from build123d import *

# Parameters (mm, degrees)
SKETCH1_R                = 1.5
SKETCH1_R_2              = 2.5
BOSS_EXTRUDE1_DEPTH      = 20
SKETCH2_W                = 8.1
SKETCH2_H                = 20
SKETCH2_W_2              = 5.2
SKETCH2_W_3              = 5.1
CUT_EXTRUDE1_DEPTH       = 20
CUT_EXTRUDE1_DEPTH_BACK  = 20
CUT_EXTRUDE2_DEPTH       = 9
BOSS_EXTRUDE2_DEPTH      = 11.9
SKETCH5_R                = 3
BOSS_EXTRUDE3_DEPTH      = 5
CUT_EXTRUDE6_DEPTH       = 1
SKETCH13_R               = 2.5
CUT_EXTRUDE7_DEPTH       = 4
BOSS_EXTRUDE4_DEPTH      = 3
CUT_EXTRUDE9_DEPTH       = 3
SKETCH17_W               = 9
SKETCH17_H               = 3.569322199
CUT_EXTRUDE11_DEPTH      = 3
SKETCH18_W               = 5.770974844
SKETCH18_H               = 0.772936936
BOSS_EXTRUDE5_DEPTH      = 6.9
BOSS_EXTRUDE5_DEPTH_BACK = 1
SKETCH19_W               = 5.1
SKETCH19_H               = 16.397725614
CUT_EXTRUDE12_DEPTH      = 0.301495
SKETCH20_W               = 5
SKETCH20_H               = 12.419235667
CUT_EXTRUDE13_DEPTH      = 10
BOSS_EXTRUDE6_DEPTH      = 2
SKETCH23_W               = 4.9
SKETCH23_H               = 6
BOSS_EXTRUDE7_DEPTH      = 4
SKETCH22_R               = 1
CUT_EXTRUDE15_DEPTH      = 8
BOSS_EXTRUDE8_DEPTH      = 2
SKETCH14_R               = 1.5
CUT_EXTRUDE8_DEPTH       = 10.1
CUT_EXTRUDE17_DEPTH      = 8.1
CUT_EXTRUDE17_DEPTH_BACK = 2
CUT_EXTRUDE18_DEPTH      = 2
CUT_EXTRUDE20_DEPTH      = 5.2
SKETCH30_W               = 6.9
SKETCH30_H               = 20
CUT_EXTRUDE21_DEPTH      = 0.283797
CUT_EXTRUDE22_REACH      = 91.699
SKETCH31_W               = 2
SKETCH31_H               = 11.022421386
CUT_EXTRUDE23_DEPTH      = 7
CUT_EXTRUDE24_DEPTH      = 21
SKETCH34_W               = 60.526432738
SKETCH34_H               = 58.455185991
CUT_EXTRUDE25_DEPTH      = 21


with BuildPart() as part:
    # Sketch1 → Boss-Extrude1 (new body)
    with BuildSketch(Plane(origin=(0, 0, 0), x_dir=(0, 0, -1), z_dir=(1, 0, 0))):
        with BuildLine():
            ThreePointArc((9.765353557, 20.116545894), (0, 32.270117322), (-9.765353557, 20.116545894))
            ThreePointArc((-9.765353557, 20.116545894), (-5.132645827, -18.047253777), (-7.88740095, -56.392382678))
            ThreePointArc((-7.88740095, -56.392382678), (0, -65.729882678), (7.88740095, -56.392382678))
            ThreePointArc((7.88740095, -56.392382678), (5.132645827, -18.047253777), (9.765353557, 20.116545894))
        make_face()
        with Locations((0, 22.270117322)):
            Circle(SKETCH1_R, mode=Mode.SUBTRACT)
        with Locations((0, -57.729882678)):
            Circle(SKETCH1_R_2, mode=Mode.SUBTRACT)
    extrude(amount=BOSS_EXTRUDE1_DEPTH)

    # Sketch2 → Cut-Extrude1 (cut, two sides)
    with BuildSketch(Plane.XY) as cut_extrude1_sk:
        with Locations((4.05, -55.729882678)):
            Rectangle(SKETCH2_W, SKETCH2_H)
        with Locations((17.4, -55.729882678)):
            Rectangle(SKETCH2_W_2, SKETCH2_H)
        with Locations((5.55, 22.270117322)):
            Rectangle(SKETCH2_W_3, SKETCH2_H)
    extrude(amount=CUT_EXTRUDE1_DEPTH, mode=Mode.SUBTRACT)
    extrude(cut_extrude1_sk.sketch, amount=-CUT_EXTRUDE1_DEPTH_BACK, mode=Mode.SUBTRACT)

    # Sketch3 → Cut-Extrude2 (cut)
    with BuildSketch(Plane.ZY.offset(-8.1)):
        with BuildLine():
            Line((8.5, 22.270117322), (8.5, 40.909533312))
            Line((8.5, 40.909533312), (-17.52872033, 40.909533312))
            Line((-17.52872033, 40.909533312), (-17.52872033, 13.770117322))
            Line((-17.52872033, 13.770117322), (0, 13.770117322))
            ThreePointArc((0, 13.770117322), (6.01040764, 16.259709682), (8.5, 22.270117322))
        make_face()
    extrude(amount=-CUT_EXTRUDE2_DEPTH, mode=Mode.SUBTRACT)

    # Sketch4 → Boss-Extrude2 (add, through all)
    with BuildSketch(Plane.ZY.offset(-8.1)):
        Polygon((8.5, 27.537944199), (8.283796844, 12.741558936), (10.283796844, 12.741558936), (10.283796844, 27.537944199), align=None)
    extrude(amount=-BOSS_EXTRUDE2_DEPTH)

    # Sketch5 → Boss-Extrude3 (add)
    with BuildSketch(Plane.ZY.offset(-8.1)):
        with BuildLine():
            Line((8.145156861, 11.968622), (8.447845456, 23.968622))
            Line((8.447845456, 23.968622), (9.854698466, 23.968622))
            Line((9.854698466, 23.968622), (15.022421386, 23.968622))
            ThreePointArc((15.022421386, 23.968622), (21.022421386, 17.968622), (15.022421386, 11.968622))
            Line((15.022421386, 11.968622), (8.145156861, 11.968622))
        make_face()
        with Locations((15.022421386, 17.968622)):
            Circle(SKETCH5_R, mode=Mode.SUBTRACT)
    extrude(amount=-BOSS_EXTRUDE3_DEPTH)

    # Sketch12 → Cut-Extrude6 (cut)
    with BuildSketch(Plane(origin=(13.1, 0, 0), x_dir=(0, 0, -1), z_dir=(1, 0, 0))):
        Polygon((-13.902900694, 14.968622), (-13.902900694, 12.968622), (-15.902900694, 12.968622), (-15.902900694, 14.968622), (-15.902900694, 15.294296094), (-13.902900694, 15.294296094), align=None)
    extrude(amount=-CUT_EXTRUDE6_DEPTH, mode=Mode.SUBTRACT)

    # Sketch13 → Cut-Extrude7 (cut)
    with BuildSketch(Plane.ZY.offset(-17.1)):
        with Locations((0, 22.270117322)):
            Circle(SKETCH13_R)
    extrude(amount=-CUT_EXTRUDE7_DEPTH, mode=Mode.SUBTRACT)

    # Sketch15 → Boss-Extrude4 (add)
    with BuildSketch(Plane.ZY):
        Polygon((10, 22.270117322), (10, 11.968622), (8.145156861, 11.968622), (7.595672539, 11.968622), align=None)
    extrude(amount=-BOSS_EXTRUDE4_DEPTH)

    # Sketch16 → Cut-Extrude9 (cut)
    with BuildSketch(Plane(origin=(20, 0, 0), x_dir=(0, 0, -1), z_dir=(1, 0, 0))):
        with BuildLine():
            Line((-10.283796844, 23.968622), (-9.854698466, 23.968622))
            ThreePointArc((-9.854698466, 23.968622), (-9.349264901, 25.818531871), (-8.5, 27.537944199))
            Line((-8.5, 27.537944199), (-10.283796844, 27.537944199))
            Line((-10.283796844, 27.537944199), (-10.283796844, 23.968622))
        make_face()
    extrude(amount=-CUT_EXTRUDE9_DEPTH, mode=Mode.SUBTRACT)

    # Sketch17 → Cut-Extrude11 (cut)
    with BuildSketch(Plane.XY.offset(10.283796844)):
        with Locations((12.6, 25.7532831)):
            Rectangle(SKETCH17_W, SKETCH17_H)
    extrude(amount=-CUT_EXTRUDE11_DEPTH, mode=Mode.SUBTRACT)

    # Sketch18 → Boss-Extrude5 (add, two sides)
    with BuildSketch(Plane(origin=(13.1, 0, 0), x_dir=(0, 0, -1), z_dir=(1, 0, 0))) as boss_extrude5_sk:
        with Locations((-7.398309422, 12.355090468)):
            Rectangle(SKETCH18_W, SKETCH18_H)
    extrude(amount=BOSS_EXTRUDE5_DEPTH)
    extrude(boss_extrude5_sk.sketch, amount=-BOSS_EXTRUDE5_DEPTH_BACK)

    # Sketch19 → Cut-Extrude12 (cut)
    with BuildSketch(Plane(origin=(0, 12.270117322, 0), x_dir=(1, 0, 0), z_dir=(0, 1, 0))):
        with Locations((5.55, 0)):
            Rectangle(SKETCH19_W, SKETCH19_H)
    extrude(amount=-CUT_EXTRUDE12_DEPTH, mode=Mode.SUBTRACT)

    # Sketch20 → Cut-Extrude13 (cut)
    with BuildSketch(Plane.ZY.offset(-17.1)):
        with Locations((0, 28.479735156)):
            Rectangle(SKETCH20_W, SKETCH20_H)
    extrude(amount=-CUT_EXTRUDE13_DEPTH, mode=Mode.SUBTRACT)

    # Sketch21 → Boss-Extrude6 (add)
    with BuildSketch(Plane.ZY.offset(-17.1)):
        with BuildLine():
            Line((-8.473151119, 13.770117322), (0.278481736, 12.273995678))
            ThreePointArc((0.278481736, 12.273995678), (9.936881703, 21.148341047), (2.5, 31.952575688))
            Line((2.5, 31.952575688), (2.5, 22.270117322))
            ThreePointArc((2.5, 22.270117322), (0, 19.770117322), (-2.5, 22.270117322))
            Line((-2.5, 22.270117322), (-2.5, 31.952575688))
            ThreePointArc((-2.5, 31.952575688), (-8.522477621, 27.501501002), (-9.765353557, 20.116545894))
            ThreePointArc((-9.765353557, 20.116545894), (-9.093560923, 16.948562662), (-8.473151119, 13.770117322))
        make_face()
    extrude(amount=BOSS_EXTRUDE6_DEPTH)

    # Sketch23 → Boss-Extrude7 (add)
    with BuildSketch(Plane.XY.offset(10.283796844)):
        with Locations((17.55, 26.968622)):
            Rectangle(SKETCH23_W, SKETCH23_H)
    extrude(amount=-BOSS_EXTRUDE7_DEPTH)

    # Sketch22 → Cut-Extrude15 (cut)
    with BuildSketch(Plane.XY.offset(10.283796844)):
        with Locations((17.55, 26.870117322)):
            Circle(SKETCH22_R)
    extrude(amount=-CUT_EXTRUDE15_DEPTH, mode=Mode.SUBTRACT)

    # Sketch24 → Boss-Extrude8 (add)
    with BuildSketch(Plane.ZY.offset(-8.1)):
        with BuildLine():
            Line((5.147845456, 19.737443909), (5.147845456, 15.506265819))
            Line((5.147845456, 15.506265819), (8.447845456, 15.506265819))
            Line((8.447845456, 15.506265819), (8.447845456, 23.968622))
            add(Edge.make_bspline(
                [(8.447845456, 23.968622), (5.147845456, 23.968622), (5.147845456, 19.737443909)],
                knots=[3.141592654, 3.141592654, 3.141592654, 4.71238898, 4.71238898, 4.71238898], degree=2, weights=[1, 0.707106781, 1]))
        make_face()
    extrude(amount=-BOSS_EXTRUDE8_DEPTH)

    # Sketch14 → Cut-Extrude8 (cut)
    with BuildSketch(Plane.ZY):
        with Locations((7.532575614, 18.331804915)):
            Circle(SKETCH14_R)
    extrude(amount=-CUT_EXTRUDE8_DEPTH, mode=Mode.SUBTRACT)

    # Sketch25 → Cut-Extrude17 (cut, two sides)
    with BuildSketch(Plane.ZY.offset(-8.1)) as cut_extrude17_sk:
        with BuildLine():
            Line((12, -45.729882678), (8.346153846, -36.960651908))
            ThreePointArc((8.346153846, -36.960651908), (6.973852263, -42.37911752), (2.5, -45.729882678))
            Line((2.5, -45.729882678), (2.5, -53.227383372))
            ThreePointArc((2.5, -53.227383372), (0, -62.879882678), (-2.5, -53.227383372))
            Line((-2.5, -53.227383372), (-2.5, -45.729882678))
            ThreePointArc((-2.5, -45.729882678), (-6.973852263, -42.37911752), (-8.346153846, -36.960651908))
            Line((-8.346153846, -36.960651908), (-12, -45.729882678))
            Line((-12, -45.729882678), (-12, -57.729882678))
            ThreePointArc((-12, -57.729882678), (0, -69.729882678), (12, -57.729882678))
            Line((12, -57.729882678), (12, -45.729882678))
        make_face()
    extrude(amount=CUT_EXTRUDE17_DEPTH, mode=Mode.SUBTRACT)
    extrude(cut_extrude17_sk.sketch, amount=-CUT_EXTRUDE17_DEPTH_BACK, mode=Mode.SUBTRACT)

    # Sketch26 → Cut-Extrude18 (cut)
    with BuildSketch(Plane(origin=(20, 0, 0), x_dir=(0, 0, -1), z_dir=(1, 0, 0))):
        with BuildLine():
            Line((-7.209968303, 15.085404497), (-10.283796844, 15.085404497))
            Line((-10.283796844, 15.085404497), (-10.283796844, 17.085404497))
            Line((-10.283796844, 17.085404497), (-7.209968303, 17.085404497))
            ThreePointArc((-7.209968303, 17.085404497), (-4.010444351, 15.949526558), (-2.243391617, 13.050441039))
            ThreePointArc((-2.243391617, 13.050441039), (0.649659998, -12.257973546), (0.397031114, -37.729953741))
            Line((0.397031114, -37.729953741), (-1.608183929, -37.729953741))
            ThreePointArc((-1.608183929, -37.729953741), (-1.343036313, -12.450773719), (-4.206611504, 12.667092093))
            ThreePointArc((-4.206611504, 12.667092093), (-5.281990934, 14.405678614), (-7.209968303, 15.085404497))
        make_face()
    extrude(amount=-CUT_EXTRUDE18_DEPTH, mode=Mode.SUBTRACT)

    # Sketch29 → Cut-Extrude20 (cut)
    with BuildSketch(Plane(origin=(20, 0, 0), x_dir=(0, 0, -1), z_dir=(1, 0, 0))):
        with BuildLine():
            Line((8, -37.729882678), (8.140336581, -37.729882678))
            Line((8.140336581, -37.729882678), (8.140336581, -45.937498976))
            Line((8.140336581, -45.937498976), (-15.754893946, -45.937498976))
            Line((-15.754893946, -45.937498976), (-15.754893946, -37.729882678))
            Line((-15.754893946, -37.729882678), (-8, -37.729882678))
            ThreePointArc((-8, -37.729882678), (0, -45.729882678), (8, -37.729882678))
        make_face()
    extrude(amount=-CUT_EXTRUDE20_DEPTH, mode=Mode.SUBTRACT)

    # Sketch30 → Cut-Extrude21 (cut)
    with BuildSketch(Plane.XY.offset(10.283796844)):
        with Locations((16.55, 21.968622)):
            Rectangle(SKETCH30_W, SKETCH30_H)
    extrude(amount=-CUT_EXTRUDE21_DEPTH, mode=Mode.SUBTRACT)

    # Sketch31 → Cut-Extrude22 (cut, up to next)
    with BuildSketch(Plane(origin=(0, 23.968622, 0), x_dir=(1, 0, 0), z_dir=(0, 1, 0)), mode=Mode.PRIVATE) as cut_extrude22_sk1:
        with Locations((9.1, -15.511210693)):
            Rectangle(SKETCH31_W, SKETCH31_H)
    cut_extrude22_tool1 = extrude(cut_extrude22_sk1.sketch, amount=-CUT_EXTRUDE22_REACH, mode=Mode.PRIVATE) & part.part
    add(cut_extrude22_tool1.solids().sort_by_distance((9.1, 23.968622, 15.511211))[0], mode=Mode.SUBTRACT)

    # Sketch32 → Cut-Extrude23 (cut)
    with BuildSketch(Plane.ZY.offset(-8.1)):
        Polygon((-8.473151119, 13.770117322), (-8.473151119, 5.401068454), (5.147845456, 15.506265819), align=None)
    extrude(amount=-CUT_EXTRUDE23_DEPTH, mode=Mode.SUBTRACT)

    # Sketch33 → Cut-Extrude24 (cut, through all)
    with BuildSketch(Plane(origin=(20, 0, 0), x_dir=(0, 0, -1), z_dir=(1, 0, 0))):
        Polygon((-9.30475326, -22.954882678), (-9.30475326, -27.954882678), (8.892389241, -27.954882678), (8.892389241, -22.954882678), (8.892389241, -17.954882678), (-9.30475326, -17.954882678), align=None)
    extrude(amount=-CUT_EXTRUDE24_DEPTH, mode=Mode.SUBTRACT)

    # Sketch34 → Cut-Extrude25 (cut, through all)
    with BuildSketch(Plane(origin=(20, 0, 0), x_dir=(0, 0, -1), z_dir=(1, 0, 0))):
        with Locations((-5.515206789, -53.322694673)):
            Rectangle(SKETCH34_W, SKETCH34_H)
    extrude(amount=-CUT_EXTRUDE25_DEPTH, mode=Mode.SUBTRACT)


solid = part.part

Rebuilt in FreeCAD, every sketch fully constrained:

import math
import FreeCAD as App
import Part
import Sketcher


def add_polygon(sketch, points):
    """Adds a closed chain of lines whose ends are joined by coincident constraints."""
    first, n = sketch.GeometryCount, len(points)
    for a, b in zip(points, points[1:] + points[:1]):
        sketch.addGeometry(Part.LineSegment(App.Vector(*a, 0), App.Vector(*b, 0)), False)
    for i in range(n):
        sketch.addConstraint(Sketcher.Constraint("Coincident", first + i, 2, first + (i + 1) % n, 1))

doc = App.newDocument("Part")
body = doc.addObject("PartDesign::Body", "Body")
body.AllowCompound = True

# Sketch on YZ plane
sketch1 = body.newObject("Sketcher::SketchObject", "Sketch")
sketch1.AttachmentSupport = (doc.getObject("YZ_Plane"), [""])
sketch1.MapMode = "FlatFace"
sketch1.addGeometry([
    Part.ArcOfCircle(Part.Circle(App.Vector(22.270117, 0, 0), App.Vector(0, 0, 1), 10), math.radians(-102.436481), math.radians(102.436481)),  # 0
    Part.ArcOfCircle(Part.Circle(App.Vector(-22.954883, 205.072425, 0), App.Vector(0, 0, 1), 200), math.radians(-99.624334), math.radians(-77.563519)),  # 1
    Part.ArcOfCircle(Part.Circle(App.Vector(-57.729883, 0, 0), App.Vector(0, 0, 1), 8), math.radians(80.375666), math.radians(279.624334)),  # 2
    Part.ArcOfCircle(Part.Circle(App.Vector(-22.954883, -205.072425, 0), App.Vector(0, 0, 1), 200), math.radians(77.563519), math.radians(99.624334)),  # 3
    Part.Circle(App.Vector(-57.729883, 0, 0), App.Vector(0, 0, 1), 2.5),  # 4
    Part.Circle(App.Vector(22.270117, 0, 0), App.Vector(0, 0, 1), 1.5),  # 5
], False)
sketch1.addConstraint([
    Sketcher.Constraint("Tangent", 0, 2, 1, 2),
    Sketcher.Constraint("Tangent", 1, 1, 2, 1),
    Sketcher.Constraint("Tangent", 2, 2, 3, 2),
    Sketcher.Constraint("Tangent", 3, 1, 0, 1),
    Sketcher.Constraint("Coincident", 4, 3, 2, 3),
    Sketcher.Constraint("Coincident", 5, 3, 0, 3),
    Sketcher.Constraint("Equal", 1, 3),
    Sketcher.Constraint("Symmetric", 1, 3, 3, 3, -1),
    Sketcher.Constraint("Diameter", 4, 5.0),
    Sketcher.Constraint("Diameter", 5, 3.0),
    Sketcher.Constraint("Radius", 0, 10.0),
    Sketcher.Constraint("Radius", 1, 200.0),
    Sketcher.Constraint("Radius", 2, 8.0),
    Sketcher.Constraint("DistanceX", 2, 3, 0, 3, 80.0),
    Sketcher.Constraint("DistanceX", -1, 1, 0, 3, 22.270117),
])
pad1 = body.newObject("PartDesign::Pad", "Pad")
pad1.Profile = sketch1
pad1.Length = 20

# Sketch on XY plane
sketch2 = body.newObject("Sketcher::SketchObject", "Sketch001")
sketch2.AttachmentSupport = (doc.getObject("XY_Plane"), [""])
sketch2.MapMode = "FlatFace"
add_polygon(sketch2, [(0, -45.729883), (0, -65.729883), (8.1, -65.729883), (8.1, -45.729883)])  # lines 0-3
add_polygon(sketch2, [(14.8, -45.729883), (14.8, -65.729883), (20, -65.729883), (20, -45.729883)])  # lines 4-7
add_polygon(sketch2, [(3, 32.270117), (3, 12.270117), (8.1, 12.270117), (8.1, 32.270117)])  # lines 8-11
sketch2.addConstraint([
    Sketcher.Constraint("Vertical", 0),
    Sketcher.Constraint("Horizontal", 1),
    Sketcher.Constraint("Vertical", 2),
    Sketcher.Constraint("Horizontal", 3),
    Sketcher.Constraint("Vertical", 4),
    Sketcher.Constraint("Horizontal", 5),
    Sketcher.Constraint("Vertical", 6),
    Sketcher.Constraint("Horizontal", 7),
    Sketcher.Constraint("Vertical", 8),
    Sketcher.Constraint("Horizontal", 9),
    Sketcher.Constraint("Vertical", 10),
    Sketcher.Constraint("Horizontal", 11),
    Sketcher.Constraint("PointOnObject", 0, 2, -2),
    Sketcher.Constraint("Horizontal", 1, 2, 4, 2),
    Sketcher.Constraint("Horizontal", 3, 2, 6, 2),
    Sketcher.Constraint("Vertical", 2, 2, 9, 2),
    Sketcher.Constraint("Equal", 6, 8),
    Sketcher.Constraint("DistanceY", 0, 2, 0, 1, 20.0),
    Sketcher.Constraint("DistanceX", 1, 1, 1, 2, 8.1),
    Sketcher.Constraint("DistanceX", 5, 1, 5, 2, 5.2),
    Sketcher.Constraint("DistanceX", 9, 1, 9, 2, 5.1),
    Sketcher.Constraint("DistanceX", -1, 1, 5, 2, 20.0),
    Sketcher.Constraint("DistanceY", 3, 2, 8, 2, 58.0),
    Sketcher.Constraint("DistanceY", 0, 2, -1, 1, 65.729883),
])
pocket1 = body.newObject("PartDesign::Pocket", "Pocket")
pocket1.Profile = sketch2
pocket1.Type = "ThroughAll"
pocket1.Midplane = True

# Sketch on YZ plane
sketch3 = body.newObject("Sketcher::SketchObject", "Sketch002")
sketch3.AttachmentSupport = (doc.getObject("YZ_Plane"), [""])
sketch3.MapMode = "FlatFace"
sketch3.AttachmentOffset = App.Placement(App.Vector(0, 0, 8.1), App.Rotation())
sketch3.addGeometry([
    Part.LineSegment(App.Vector(22.270117, 8.5, 0), App.Vector(40.909533, 8.5, 0)),  # 0
    Part.LineSegment(App.Vector(40.909533, 8.5, 0), App.Vector(40.909533, -17.52872, 0)),  # 1
    Part.LineSegment(App.Vector(40.909533, -17.52872, 0), App.Vector(13.770117, -17.52872, 0)),  # 2
    Part.LineSegment(App.Vector(13.770117, -17.52872, 0), App.Vector(13.770117, 0, 0)),  # 3
    Part.ArcOfCircle(Part.Circle(App.Vector(22.270117, 0, 0), App.Vector(0, 0, 1), 8.5), math.radians(90), math.radians(180)),  # 4
], False)
sketch3.addConstraint([
    Sketcher.Constraint("Coincident", 0, 2, 1, 1),
    Sketcher.Constraint("Coincident", 1, 2, 2, 1),
    Sketcher.Constraint("Coincident", 2, 2, 3, 1),
    Sketcher.Constraint("Tangent", 3, 2, 4, 2),
    Sketcher.Constraint("Tangent", 4, 1, 0, 1),
    Sketcher.Constraint("Horizontal", 0),
    Sketcher.Constraint("Vertical", 1),
    Sketcher.Constraint("Horizontal", 2),
    Sketcher.Constraint("Vertical", 3),
    Sketcher.Constraint("PointOnObject", 4, 3, -1),
    Sketcher.Constraint("Radius", 4, 8.5),
    Sketcher.Constraint("DistanceY", 1, 2, 1, 1, 26.02872),
    Sketcher.Constraint("DistanceX", 0, 1, 0, 2, 18.639416),
    Sketcher.Constraint("DistanceX", -1, 1, 4, 3, 22.270117),
])
pocket2 = body.newObject("PartDesign::Pocket", "Pocket001")
pocket2.Profile = sketch3
pocket2.Length = 9
pocket2.Reversed = True

# Sketch on YZ plane
sketch4 = body.newObject("Sketcher::SketchObject", "Sketch003")
sketch4.AttachmentSupport = (doc.getObject("YZ_Plane"), [""])
sketch4.MapMode = "FlatFace"
sketch4.AttachmentOffset = App.Placement(App.Vector(0, 0, 8.1), App.Rotation())
add_polygon(sketch4, [(27.537944, 8.5), (12.741559, 8.283797), (12.741559, 10.283797), (27.537944, 10.283797)])  # lines 0-3
sketch4.addConstraint([
    Sketcher.Constraint("Vertical", 1),
    Sketcher.Constraint("Horizontal", 2),
    Sketcher.Constraint("Vertical", 3),
    Sketcher.Constraint("DistanceY", 1, 1, 1, 2, 2.0),
    Sketcher.Constraint("DistanceY", -1, 1, 3, 2, 8.5),
    Sketcher.Constraint("DistanceX", 2, 1, 2, 2, 14.796385),
    Sketcher.Constraint("DistanceY", 3, 2, 3, 1, 1.783797),
    Sketcher.Constraint("DistanceX", -1, 1, 0, 2, 12.741559),
])
pad2 = body.newObject("PartDesign::Pad", "Pad001")
pad2.Profile = sketch4
pad2.Type = "UpToLast"

# Sketch on YZ plane
sketch5 = body.newObject("Sketcher::SketchObject", "Sketch004")
sketch5.AttachmentSupport = (doc.getObject("YZ_Plane"), [""])
sketch5.MapMode = "FlatFace"
sketch5.AttachmentOffset = App.Placement(App.Vector(0, 0, 8.1), App.Rotation())
sketch5.addGeometry([
    Part.LineSegment(App.Vector(23.968622, 8.447845, 0), App.Vector(11.968622, 8.145157, 0)),  # 0
    Part.LineSegment(App.Vector(11.968622, 8.145157, 0), App.Vector(11.968622, 15.022421, 0)),  # 1
    Part.ArcOfCircle(Part.Circle(App.Vector(17.968622, 15.022421, 0), App.Vector(0, 0, 1), 6), math.radians(0), math.radians(180)),  # 2
    Part.LineSegment(App.Vector(23.968622, 15.022421, 0), App.Vector(23.968622, 8.447845, 0)),  # 3
    Part.Circle(App.Vector(17.968622, 15.022421, 0), App.Vector(0, 0, 1), 3),  # 4
], False)
sketch5.addConstraint([
    Sketcher.Constraint("Coincident", 0, 2, 1, 1),
    Sketcher.Constraint("Tangent", 1, 2, 2, 2),
    Sketcher.Constraint("Tangent", 2, 1, 3, 1),
    Sketcher.Constraint("Coincident", 3, 2, 0, 1),
    Sketcher.Constraint("Vertical", 1),
    Sketcher.Constraint("Vertical", 3),
    Sketcher.Constraint("Coincident", 4, 3, 2, 3),
    Sketcher.Constraint("Diameter", 4, 6.0),
    Sketcher.Constraint("Radius", 2, 6.0),
    Sketcher.Constraint("DistanceY", 1, 1, 1, 2, 6.877265),
    Sketcher.Constraint("DistanceY", 3, 2, 3, 1, 6.574576),
    Sketcher.Constraint("DistanceX", -1, 1, 2, 3, 17.968622),
    Sketcher.Constraint("DistanceY", -1, 1, 2, 3, 15.022421),
])
pad3 = body.newObject("PartDesign::Pad", "Pad002")
pad3.Profile = sketch5
pad3.Length = 5

# Sketch on YZ plane
sketch6 = body.newObject("Sketcher::SketchObject", "Sketch005")
sketch6.AttachmentSupport = (doc.getObject("YZ_Plane"), [""])
sketch6.MapMode = "FlatFace"
sketch6.AttachmentOffset = App.Placement(App.Vector(0, 0, 13.1), App.Rotation())
add_polygon(sketch6, [(12.968622, 13.902901), (15.294296, 13.902901), (15.294296, 15.902901), (12.968622, 15.902901)])  # lines 0-3
sketch6.addConstraint([
    Sketcher.Constraint("Horizontal", 0),
    Sketcher.Constraint("Vertical", 1),
    Sketcher.Constraint("Horizontal", 2),
    Sketcher.Constraint("Vertical", 3),
    Sketcher.Constraint("DistanceY", 1, 1, 1, 2, 2.0),
    Sketcher.Constraint("DistanceY", -1, 1, 0, 2, 13.902901),
    Sketcher.Constraint("DistanceX", 0, 1, 0, 2, 2.325674),
    Sketcher.Constraint("DistanceX", -1, 1, 0, 2, 15.294296),
])
pocket3 = body.newObject("PartDesign::Pocket", "Pocket002")
pocket3.Profile = sketch6
pocket3.Length = 1

# Sketch on YZ plane
sketch7 = body.newObject("Sketcher::SketchObject", "Sketch006")
sketch7.AttachmentSupport = (doc.getObject("YZ_Plane"), [""])
sketch7.MapMode = "FlatFace"
sketch7.AttachmentOffset = App.Placement(App.Vector(0, 0, 17.1), App.Rotation())
sketch7.addGeometry(Part.Circle(App.Vector(22.270117, 0, 0), App.Vector(0, 0, 1), 2.5), False)
sketch7.addConstraint([
    Sketcher.Constraint("PointOnObject", 0, 3, -1),
    Sketcher.Constraint("Diameter", 0, 5.0),
    Sketcher.Constraint("DistanceX", -1, 1, 0, 3, 22.270117),
])
pocket4 = body.newObject("PartDesign::Pocket", "Pocket003")
pocket4.Profile = sketch7
pocket4.Length = 4
pocket4.Reversed = True

# Sketch on YZ plane
sketch8 = body.newObject("Sketcher::SketchObject", "Sketch007")
sketch8.AttachmentSupport = (doc.getObject("YZ_Plane"), [""])
sketch8.MapMode = "FlatFace"
add_polygon(sketch8, [(11.968622, 10), (22.270117, 10), (11.968622, 7.595673)])  # lines 0-2
sketch8.addConstraint([
    Sketcher.Constraint("Horizontal", 0),
    Sketcher.Constraint("Vertical", 2),
    Sketcher.Constraint("DistanceY", -1, 1, 0, 2, 10.0),
    Sketcher.Constraint("DistanceX", 0, 1, 0, 2, 10.301495),
    Sketcher.Constraint("DistanceY", 2, 1, 2, 2, 2.404327),
    Sketcher.Constraint("DistanceX", -1, 1, 0, 2, 22.270117),
])
pad4 = body.newObject("PartDesign::Pad", "Pad003")
pad4.Profile = sketch8
pad4.Length = 3

# Sketch on YZ plane
sketch9 = body.newObject("Sketcher::SketchObject", "Sketch008")
sketch9.AttachmentSupport = (doc.getObject("YZ_Plane"), [""])
sketch9.MapMode = "FlatFace"
sketch9.AttachmentOffset = App.Placement(App.Vector(0, 0, 20), App.Rotation())
sketch9.addGeometry([
    Part.LineSegment(App.Vector(23.968622, 10.283797, 0), App.Vector(23.968622, 9.854698, 0)),
    Part.ArcOfCircle(Part.Circle(App.Vector(22.270117, 0, 0), App.Vector(0, 0, 1), 10), math.radians(58.211669), math.radians(80.220875)),
    Part.LineSegment(App.Vector(27.537944, 8.5, 0), App.Vector(27.537944, 10.283797, 0)),
    Part.LineSegment(App.Vector(27.537944, 10.283797, 0), App.Vector(23.968622, 10.283797, 0)),
], False)
sketch9.addConstraint([
    Sketcher.Constraint("Coincident", 0, 2, 1, 2),
    Sketcher.Constraint("Coincident", 1, 1, 2, 1),
    Sketcher.Constraint("Coincident", 2, 2, 3, 1),
    Sketcher.Constraint("Coincident", 3, 2, 0, 1),
    Sketcher.Constraint("Vertical", 0),
    Sketcher.Constraint("Vertical", 2),
    Sketcher.Constraint("Horizontal", 3),
    Sketcher.Constraint("PointOnObject", 1, 3, -1),
    Sketcher.Constraint("Radius", 1, 10.0),
    Sketcher.Constraint("DistanceY", -1, 1, 1, 1, 8.5),
    Sketcher.Constraint("DistanceY", 0, 2, 0, 1, 0.429098),
    Sketcher.Constraint("DistanceY", -1, 1, 0, 2, 9.854698),
    Sketcher.Constraint("DistanceX", -1, 1, 0, 2, 23.968622),
])
pocket5 = body.newObject("PartDesign::Pocket", "Pocket004")
pocket5.Profile = sketch9
pocket5.Length = 3

# Sketch on XY plane
sketch10 = body.newObject("Sketcher::SketchObject", "Sketch009")
sketch10.AttachmentSupport = (doc.getObject("XY_Plane"), [""])
sketch10.MapMode = "FlatFace"
sketch10.AttachmentOffset = App.Placement(App.Vector(0, 0, 10.283797), App.Rotation())
add_polygon(sketch10, [(8.1, 27.537944), (8.1, 23.968622), (17.1, 23.968622), (17.1, 27.537944)])  # lines 0-3
sketch10.addConstraint([
    Sketcher.Constraint("Vertical", 0),
    Sketcher.Constraint("Horizontal", 1),
    Sketcher.Constraint("Vertical", 2),
    Sketcher.Constraint("Horizontal", 3),
    Sketcher.Constraint("DistanceX", 1, 1, 1, 2, 9.0),
    Sketcher.Constraint("DistanceX", -1, 1, 0, 2, 8.1),
    Sketcher.Constraint("DistanceY", 0, 2, 0, 1, 3.569322),
    Sketcher.Constraint("DistanceY", -1, 1, 0, 2, 23.968622),
])
pocket6 = body.newObject("PartDesign::Pocket", "Pocket005")
pocket6.Profile = sketch10
pocket6.Length = 3

# Sketch on YZ plane
sketch11 = body.newObject("Sketcher::SketchObject", "Sketch010")
sketch11.AttachmentSupport = (doc.getObject("YZ_Plane"), [""])
sketch11.MapMode = "FlatFace"
sketch11.AttachmentOffset = App.Placement(App.Vector(0, 0, 13.1), App.Rotation())
add_polygon(sketch11, [(12.741559, 10.283797), (11.968622, 10.283797), (11.968622, 4.512822), (12.741559, 4.512822)])  # lines 0-3
sketch11.addConstraint([
    Sketcher.Constraint("Horizontal", 0),
    Sketcher.Constraint("Vertical", 1),
    Sketcher.Constraint("Horizontal", 2),
    Sketcher.Constraint("Vertical", 3),
    Sketcher.Constraint("DistanceX", 0, 2, 0, 1, 0.772937),
    Sketcher.Constraint("DistanceY", 1, 2, 1, 1, 5.770975),
    Sketcher.Constraint("DistanceX", -1, 1, 2, 2, 12.741559),
    Sketcher.Constraint("DistanceY", -1, 1, 0, 2, 10.283797),
])
pad5 = body.newObject("PartDesign::Pad", "Pad004")
pad5.Profile = sketch11
pad5.Type = "TwoLengths"
pad5.Length = 6.9
pad5.Length2 = 1

# Sketch on XZ plane
sketch12 = body.newObject("Sketcher::SketchObject", "Sketch011")
sketch12.AttachmentSupport = (doc.getObject("XZ_Plane"), [""])
sketch12.MapMode = "FlatFace"
sketch12.AttachmentOffset = App.Placement(App.Vector(0, 0, -12.270117), App.Rotation())
add_polygon(sketch12, [(3, -8.198863), (3, 8.198863), (8.1, 8.198863), (8.1, -8.198863)])  # lines 0-3
sketch12.addConstraint([
    Sketcher.Constraint("Vertical", 0),
    Sketcher.Constraint("Horizontal", 1),
    Sketcher.Constraint("Vertical", 2),
    Sketcher.Constraint("Horizontal", 3),
    Sketcher.Constraint("DistanceX", 1, 1, 1, 2, 5.1),
    Sketcher.Constraint("DistanceX", -1, 1, 0, 2, 3.0),
    Sketcher.Constraint("DistanceY", 0, 1, 0, 2, 16.397726),
    Sketcher.Constraint("DistanceY", -1, 1, 0, 2, 8.198863),
])
pocket7 = body.newObject("PartDesign::Pocket", "Pocket006")
pocket7.Profile = sketch12
pocket7.Length = 0.301495
pocket7.Reversed = True

# Sketch on YZ plane
sketch13 = body.newObject("Sketcher::SketchObject", "Sketch012")
sketch13.AttachmentSupport = (doc.getObject("YZ_Plane"), [""])
sketch13.MapMode = "FlatFace"
sketch13.AttachmentOffset = App.Placement(App.Vector(0, 0, 17.1), App.Rotation())
add_polygon(sketch13, [(34.689353, -2.5), (22.270117, -2.5), (22.270117, 2.5), (34.689353, 2.5)])  # lines 0-3
sketch13.addConstraint([
    Sketcher.Constraint("Horizontal", 0),
    Sketcher.Constraint("Vertical", 1),
    Sketcher.Constraint("Horizontal", 2),
    Sketcher.Constraint("Vertical", 3),
    Sketcher.Constraint("DistanceY", 1, 1, 1, 2, 5.0),
    Sketcher.Constraint("DistanceY", 0, 2, -1, 1, 2.5),
    Sketcher.Constraint("DistanceX", 0, 2, 0, 1, 12.419236),
    Sketcher.Constraint("DistanceX", -1, 1, 0, 2, 22.270117),
])
pocket8 = body.newObject("PartDesign::Pocket", "Pocket007")
pocket8.Profile = sketch13
pocket8.Length = 10
pocket8.Reversed = True

# Sketch on YZ plane
sketch14 = body.newObject("Sketcher::SketchObject", "Sketch013")
sketch14.AttachmentSupport = (doc.getObject("YZ_Plane"), [""])
sketch14.MapMode = "FlatFace"
sketch14.AttachmentOffset = App.Placement(App.Vector(0, 0, 17.1), App.Rotation())
sketch14.addGeometry([
    Part.LineSegment(App.Vector(13.770117, -8.473151, 0), App.Vector(12.273996, 0.278482, 0)),  # 0
    Part.ArcOfCircle(Part.Circle(App.Vector(22.270117, 0, 0), App.Vector(0, 0, 1), 10), math.radians(14.477512), math.radians(178.404211)),  # 1
    Part.LineSegment(App.Vector(31.952576, 2.5, 0), App.Vector(22.270117, 2.5, 0)),  # 2
    Part.ArcOfCircle(Part.Circle(App.Vector(22.270117, 0, 0), App.Vector(0, 0, 1), 2.5), math.radians(90), math.radians(270)),  # 3
    Part.LineSegment(App.Vector(22.270117, -2.5, 0), App.Vector(31.952576, -2.5, 0)),  # 4
    Part.ArcOfCircle(Part.Circle(App.Vector(22.270117, 0, 0), App.Vector(0, 0, 1), 10), math.radians(-102.436481), math.radians(-14.477512)),  # 5
    Part.ArcOfCircle(Part.Circle(App.Vector(-22.954884, -205.07243, 0), App.Vector(0, 0, 1), 200.000006), math.radians(77.563519), math.radians(79.419023)),  # 6
], False)
sketch14.addConstraint([
    Sketcher.Constraint("Coincident", 0, 2, 1, 2),
    Sketcher.Constraint("Coincident", 1, 1, 2, 1),
    Sketcher.Constraint("Tangent", 2, 2, 3, 1),
    Sketcher.Constraint("Tangent", 3, 2, 4, 1),
    Sketcher.Constraint("Coincident", 4, 2, 5, 2),
    Sketcher.Constraint("Tangent", 5, 1, 6, 1),
    Sketcher.Constraint("Coincident", 6, 2, 0, 1),
    Sketcher.Constraint("Horizontal", 2),
    Sketcher.Constraint("Horizontal", 4),
    Sketcher.Constraint("Coincident", 3, 3, 1, 3),
    Sketcher.Constraint("Coincident", 5, 3, 1, 3),
    Sketcher.Constraint("Equal", 1, 5),
    Sketcher.Constraint("PointOnObject", 1, 3, -1),
    Sketcher.Constraint("Radius", 1, 10.0),
    Sketcher.Constraint("Radius", 3, 2.5),
    Sketcher.Constraint("DistanceX", 6, 2, 3, 2, 8.5),
    Sketcher.Constraint("Radius", 6, 200.000006),
    Sketcher.Constraint("DistanceX", 6, 3, 1, 3, 45.225001),
    Sketcher.Constraint("DistanceY", -1, 1, 0, 2, 0.278482),
    Sketcher.Constraint("DistanceX", -1, 1, 1, 3, 22.270117),
])
pad6 = body.newObject("PartDesign::Pad", "Pad005")
pad6.Profile = sketch14
pad6.Length = 2
pad6.Reversed = True

# Sketch on XY plane
sketch15 = body.newObject("Sketcher::SketchObject", "Sketch014")
sketch15.AttachmentSupport = (doc.getObject("XY_Plane"), [""])
sketch15.MapMode = "FlatFace"
sketch15.AttachmentOffset = App.Placement(App.Vector(0, 0, 10.283797), App.Rotation())
add_polygon(sketch15, [(15.1, 29.968622), (15.1, 23.968622), (20, 23.968622), (20, 29.968622)])  # lines 0-3
sketch15.addConstraint([
    Sketcher.Constraint("Vertical", 0),
    Sketcher.Constraint("Horizontal", 1),
    Sketcher.Constraint("Vertical", 2),
    Sketcher.Constraint("Horizontal", 3),
    Sketcher.Constraint("DistanceY", 0, 2, 0, 1, 6.0),
    Sketcher.Constraint("DistanceX", 1, 1, 1, 2, 4.9),
    Sketcher.Constraint("DistanceX", -1, 1, 1, 2, 20.0),
    Sketcher.Constraint("DistanceY", -1, 1, 0, 2, 23.968622),
])
pad7 = body.newObject("PartDesign::Pad", "Pad006")
pad7.Profile = sketch15
pad7.Length = 4
pad7.Reversed = True

# Sketch on XY plane
sketch16 = body.newObject("Sketcher::SketchObject", "Sketch015")
sketch16.AttachmentSupport = (doc.getObject("XY_Plane"), [""])
sketch16.MapMode = "FlatFace"
sketch16.AttachmentOffset = App.Placement(App.Vector(0, 0, 10.283797), App.Rotation())
sketch16.addGeometry(Part.Circle(App.Vector(17.55, 26.870117, 0), App.Vector(0, 0, 1), 1), False)
sketch16.addConstraint([
    Sketcher.Constraint("Diameter", 0, 2.0),
    Sketcher.Constraint("DistanceX", -1, 1, 0, 3, 17.55),
    Sketcher.Constraint("DistanceY", -1, 1, 0, 3, 26.870117),
])
pocket9 = body.newObject("PartDesign::Pocket", "Pocket008")
pocket9.Profile = sketch16
pocket9.Length = 8

# Sketch on YZ plane
sketch17 = body.newObject("Sketcher::SketchObject", "Sketch016")
sketch17.AttachmentSupport = (doc.getObject("YZ_Plane"), [""])
sketch17.MapMode = "FlatFace"
sketch17.AttachmentOffset = App.Placement(App.Vector(0, 0, 8.1), App.Rotation())
sketch17.addGeometry([
    Part.LineSegment(App.Vector(19.737444, 5.147845, 0), App.Vector(15.506266, 5.147845, 0)),
    Part.LineSegment(App.Vector(15.506266, 5.147845, 0), App.Vector(15.506266, 8.447845, 0)),
    Part.LineSegment(App.Vector(15.506266, 8.447845, 0), App.Vector(23.968622, 8.447845, 0)),
    Part.BSplineCurve([App.Vector(23.968622, 8.447845, 0), App.Vector(23.968622, 5.147845, 0), App.Vector(19.737444, 5.147845, 0)], [3, 3], [3.141592654, 4.71238898], False, 2, [1, 0.707106781, 1], False),
], False)
sketch17.addConstraint([
    Sketcher.Constraint("Block", 3),
    Sketcher.Constraint("Coincident", 0, 2, 1, 1),
    Sketcher.Constraint("Coincident", 1, 2, 2, 1),
    Sketcher.Constraint("Coincident", 2, 2, 3, 1),
    Sketcher.Constraint("Coincident", 3, 2, 0, 1),
    Sketcher.Constraint("Horizontal", 0),
    Sketcher.Constraint("Vertical", 1),
    Sketcher.Constraint("Horizontal", 2),
    Sketcher.Constraint("DistanceX", 0, 2, 0, 1, 4.231178),
])
pad8 = body.newObject("PartDesign::Pad", "Pad007")
pad8.Profile = sketch17
pad8.Length = 2

# Sketch on YZ plane
sketch18 = body.newObject("Sketcher::SketchObject", "Sketch017")
sketch18.AttachmentSupport = (doc.getObject("YZ_Plane"), [""])
sketch18.MapMode = "FlatFace"
sketch18.addGeometry(Part.Circle(App.Vector(18.331805, 7.532576, 0), App.Vector(0, 0, 1), 1.5), False)
sketch18.addConstraint([
    Sketcher.Constraint("Diameter", 0, 3.0),
    Sketcher.Constraint("DistanceX", -1, 1, 0, 3, 18.331805),
    Sketcher.Constraint("DistanceY", -1, 1, 0, 3, 7.532576),
])
pocket10 = body.newObject("PartDesign::Pocket", "Pocket009")
pocket10.Profile = sketch18
pocket10.Length = 10.1
pocket10.Reversed = True

# Sketch on YZ plane
sketch19 = body.newObject("Sketcher::SketchObject", "Sketch018")
sketch19.AttachmentSupport = (doc.getObject("YZ_Plane"), [""])
sketch19.MapMode = "FlatFace"
sketch19.AttachmentOffset = App.Placement(App.Vector(0, 0, 8.1), App.Rotation())
sketch19.addGeometry([
    Part.LineSegment(App.Vector(-45.729883, 12, 0), App.Vector(-36.960652, 8.346154, 0)),  # 0
    Part.ArcOfCircle(Part.Circle(App.Vector(-37.729883, 0, 0), App.Vector(0, 0, 1), 8.381527), math.radians(84.73416), math.radians(162.645975)),  # 1
    Part.LineSegment(App.Vector(-45.729883, 2.5, 0), App.Vector(-53.227383, 2.5, 0)),  # 2
    Part.ArcOfCircle(Part.Circle(App.Vector(-57.729883, 0, 0), App.Vector(0, 0, 1), 5.15), math.radians(29.0411), math.radians(330.9589)),  # 3
    Part.LineSegment(App.Vector(-53.227383, -2.5, 0), App.Vector(-45.729883, -2.5, 0)),  # 4
    Part.ArcOfCircle(Part.Circle(App.Vector(-37.729883, 0, 0), App.Vector(0, 0, 1), 8.381527), math.radians(-162.645975), math.radians(-84.73416)),  # 5
    Part.LineSegment(App.Vector(-36.960652, -8.346154, 0), App.Vector(-45.729883, -12, 0)),  # 6
    Part.LineSegment(App.Vector(-45.729883, -12, 0), App.Vector(-57.729883, -12, 0)),  # 7
    Part.ArcOfCircle(Part.Circle(App.Vector(-57.729883, 0, 0), App.Vector(0, 0, 1), 12), math.radians(90), math.radians(270)),  # 8
    Part.LineSegment(App.Vector(-57.729883, 12, 0), App.Vector(-45.729883, 12, 0)),  # 9
], False)
sketch19.addConstraint([
    Sketcher.Constraint("Coincident", 0, 2, 1, 1),
    Sketcher.Constraint("Coincident", 1, 2, 2, 1),
    Sketcher.Constraint("Coincident", 2, 2, 3, 1),
    Sketcher.Constraint("Coincident", 3, 2, 4, 1),
    Sketcher.Constraint("Coincident", 4, 2, 5, 1),
    Sketcher.Constraint("Coincident", 5, 2, 6, 1),
    Sketcher.Constraint("Coincident", 6, 2, 7, 1),
    Sketcher.Constraint("Tangent", 7, 2, 8, 2),
    Sketcher.Constraint("Tangent", 8, 1, 9, 1),
    Sketcher.Constraint("Coincident", 9, 2, 0, 1),
    Sketcher.Constraint("Horizontal", 2),
    Sketcher.Constraint("Horizontal", 4),
    Sketcher.Constraint("Horizontal", 7),
    Sketcher.Constraint("Horizontal", 9),
    Sketcher.Constraint("Coincident", 5, 3, 1, 3),
    Sketcher.Constraint("Coincident", 8, 3, 3, 3),
    Sketcher.Constraint("Equal", 1, 5),
    Sketcher.Constraint("Symmetric", 2, 2, 3, 2, -1),
    Sketcher.Constraint("Symmetric", 0, 2, 5, 2, -1),
    Sketcher.Constraint("Vertical", 4, 2, 6, 2),
    Sketcher.Constraint("Vertical", 6, 2, 9, 2),
    Sketcher.Constraint("Radius", 8, 12.0),
    Sketcher.Constraint("DistanceX", 7, 2, 7, 1, 12.0),
    Sketcher.Constraint("Radius", 3, 5.15),
    Sketcher.Constraint("DistanceX", 3, 3, 1, 3, 20.0),
    Sketcher.Constraint("DistanceY", 3, 2, 2, 2, 5.0),
    Sketcher.Constraint("Distance", 0, 9.5),
    Sketcher.Constraint("DistanceX", 0, 2, -1, 1, 36.960652),
])
pocket11 = body.newObject("PartDesign::Pocket", "Pocket010")
pocket11.Profile = sketch19
pocket11.Type = "TwoLengths"
pocket11.Length = 8.1
pocket11.Length2 = 2

# Sketch on YZ plane
sketch20 = body.newObject("Sketcher::SketchObject", "Sketch019")
sketch20.AttachmentSupport = (doc.getObject("YZ_Plane"), [""])
sketch20.MapMode = "FlatFace"
sketch20.AttachmentOffset = App.Placement(App.Vector(0, 0, 20), App.Rotation())
sketch20.addGeometry([
    Part.LineSegment(App.Vector(15.085404, 10.283797, 0), App.Vector(15.085404, 7.209968, 0)),  # 0
    Part.ArcOfCircle(Part.Circle(App.Vector(12.01128, 7.209968, 0), App.Vector(0, 0, 1), 3.074125), math.radians(-77.682255), math.radians(0)),  # 1
    Part.ArcOfCircle(Part.Circle(App.Vector(-22.954883, 205.072425, 0), App.Vector(0, 0, 1), 204), math.radians(-94.153388), math.radians(-79.943599)),  # 2
    Part.LineSegment(App.Vector(-37.729954, 1.608184, 0), App.Vector(-37.729954, -0.397031, 0)),  # 3
    Part.ArcOfCircle(Part.Circle(App.Vector(-22.954883, 205.072425, 0), App.Vector(0, 0, 1), 206), math.radians(-94.112994), math.radians(-79.933962)),  # 4
    Part.ArcOfCircle(Part.Circle(App.Vector(12.01128, 7.209968, 0), App.Vector(0, 0, 1), 5.074125), math.radians(-78.182435), math.radians(0)),  # 5
    Part.LineSegment(App.Vector(17.085404, 7.209968, 0), App.Vector(17.085404, 10.283797, 0)),  # 6
    Part.LineSegment(App.Vector(17.085404, 10.283797, 0), App.Vector(15.085404, 10.283797, 0)),  # 7
], False)
sketch20.addConstraint([
    Sketcher.Constraint("Tangent", 0, 2, 1, 2),
    Sketcher.Constraint("Coincident", 1, 1, 2, 2),
    Sketcher.Constraint("Coincident", 2, 1, 3, 1),
    Sketcher.Constraint("Coincident", 3, 2, 4, 1),
    Sketcher.Constraint("Coincident", 4, 2, 5, 1),
    Sketcher.Constraint("Tangent", 5, 2, 6, 1),
    Sketcher.Constraint("Coincident", 6, 2, 7, 1),
    Sketcher.Constraint("Coincident", 7, 2, 0, 1),
    Sketcher.Constraint("Vertical", 0),
    Sketcher.Constraint("Vertical", 3),
    Sketcher.Constraint("Vertical", 6),
    Sketcher.Constraint("Horizontal", 7),
    Sketcher.Constraint("Coincident", 4, 3, 2, 3),
    Sketcher.Constraint("Coincident", 5, 3, 1, 3),
    Sketcher.Constraint("Radius", 2, 204.0),
    Sketcher.Constraint("Radius", 4, 206.0),
    Sketcher.Constraint("DistanceX", 7, 2, 7, 1, 2.0),
    Sketcher.Constraint("Radius", 1, 3.074125),
    Sketcher.Constraint("DistanceY", 3, 2, 1, 3, 7.606999),
    Sketcher.Constraint("DistanceY", 0, 2, 0, 1, 3.073829),
    Sketcher.Constraint("DistanceX", -1, 1, 1, 3, 12.01128),
    Sketcher.Constraint("DistanceY", -1, 1, 1, 3, 7.209968),
    Sketcher.Constraint("DistanceY", -1, 1, 1, 1, 4.206612),
    Sketcher.Constraint("DistanceX", 2, 1, 0, 2, 52.815358),
])
pocket12 = body.newObject("PartDesign::Pocket", "Pocket011")
pocket12.Profile = sketch20
pocket12.Length = 2

# Sketch on YZ plane
sketch21 = body.newObject("Sketcher::SketchObject", "Sketch020")
sketch21.AttachmentSupport = (doc.getObject("YZ_Plane"), [""])
sketch21.MapMode = "FlatFace"
sketch21.AttachmentOffset = App.Placement(App.Vector(0, 0, 20), App.Rotation())
sketch21.addGeometry([
    Part.LineSegment(App.Vector(-37.729883, -8.140337, 0), App.Vector(-37.729883, -8, 0)),  # 0
    Part.ArcOfCircle(Part.Circle(App.Vector(-37.729883, 0, 0), App.Vector(0, 0, 1), 8), math.radians(90), math.radians(270)),  # 1
    Part.LineSegment(App.Vector(-37.729883, 8, 0), App.Vector(-37.729883, 15.754894, 0)),  # 2
    Part.LineSegment(App.Vector(-37.729883, 15.754894, 0), App.Vector(-45.937499, 15.754894, 0)),  # 3
    Part.LineSegment(App.Vector(-45.937499, 15.754894, 0), App.Vector(-45.937499, -8.140337, 0)),  # 4
    Part.LineSegment(App.Vector(-45.937499, -8.140337, 0), App.Vector(-37.729883, -8.140337, 0)),  # 5
], False)
sketch21.addConstraint([
    Sketcher.Constraint("Coincident", 0, 2, 1, 2),
    Sketcher.Constraint("Coincident", 1, 1, 2, 1),
    Sketcher.Constraint("Coincident", 2, 2, 3, 1),
    Sketcher.Constraint("Coincident", 3, 2, 4, 1),
    Sketcher.Constraint("Coincident", 4, 2, 5, 1),
    Sketcher.Constraint("Coincident", 5, 2, 0, 1),
    Sketcher.Constraint("Vertical", 0),
    Sketcher.Constraint("Vertical", 2),
    Sketcher.Constraint("Horizontal", 3),
    Sketcher.Constraint("Vertical", 4),
    Sketcher.Constraint("Horizontal", 5),
    Sketcher.Constraint("Symmetric", 0, 2, 1, 1, -1),
    Sketcher.Constraint("Vertical", 1, 3, 0, 2),
    Sketcher.Constraint("Radius", 1, 8.0),
    Sketcher.Constraint("DistanceY", 4, 2, 4, 1, 23.895231),
    Sketcher.Constraint("DistanceX", 3, 2, -1, 1, 45.937499),
    Sketcher.Constraint("DistanceX", 3, 2, 3, 1, 8.207616),
    Sketcher.Constraint("DistanceY", 0, 1, 0, 2, 0.140337),
])
pocket13 = body.newObject("PartDesign::Pocket", "Pocket012")
pocket13.Profile = sketch21
pocket13.Length = 5.2

# Sketch on XY plane
sketch22 = body.newObject("Sketcher::SketchObject", "Sketch021")
sketch22.AttachmentSupport = (doc.getObject("XY_Plane"), [""])
sketch22.MapMode = "FlatFace"
sketch22.AttachmentOffset = App.Placement(App.Vector(0, 0, 10.283797), App.Rotation())
add_polygon(sketch22, [(13.1, 31.968622), (13.1, 11.968622), (20, 11.968622), (20, 31.968622)])  # lines 0-3
sketch22.addConstraint([
    Sketcher.Constraint("Vertical", 0),
    Sketcher.Constraint("Horizontal", 1),
    Sketcher.Constraint("Vertical", 2),
    Sketcher.Constraint("Horizontal", 3),
    Sketcher.Constraint("DistanceY", 0, 2, 0, 1, 20.0),
    Sketcher.Constraint("DistanceX", 1, 1, 1, 2, 6.9),
    Sketcher.Constraint("DistanceX", -1, 1, 1, 2, 20.0),
    Sketcher.Constraint("DistanceY", -1, 1, 2, 2, 31.968622),
])
pocket14 = body.newObject("PartDesign::Pocket", "Pocket013")
pocket14.Profile = sketch22
pocket14.Length = 0.283797

# Sketch on XZ plane
sketch23 = body.newObject("Sketcher::SketchObject", "Sketch022")
sketch23.AttachmentSupport = (doc.getObject("XZ_Plane"), [""])
sketch23.MapMode = "FlatFace"
sketch23.AttachmentOffset = App.Placement(App.Vector(0, 0, -23.968622), App.Rotation())
add_polygon(sketch23, [(8.1, 10), (8.1, 21.022421), (10.1, 21.022421), (10.1, 10)])  # lines 0-3
sketch23.addConstraint([
    Sketcher.Constraint("Vertical", 0),
    Sketcher.Constraint("Horizontal", 1),
    Sketcher.Constraint("Vertical", 2),
    Sketcher.Constraint("Horizontal", 3),
    Sketcher.Constraint("DistanceX", 1, 1, 1, 2, 2.0),
    Sketcher.Constraint("DistanceY", -1, 1, 2, 2, 10.0),
    Sketcher.Constraint("DistanceX", -1, 1, 0, 2, 8.1),
    Sketcher.Constraint("DistanceY", 0, 1, 0, 2, 11.022421),
])
pocket15 = body.newObject("PartDesign::Pocket", "Pocket014")
pocket15.Profile = sketch23
pocket15.Length = 12
pocket15.Reversed = True

# Sketch on YZ plane
sketch24 = body.newObject("Sketcher::SketchObject", "Sketch023")
sketch24.AttachmentSupport = (doc.getObject("YZ_Plane"), [""])
sketch24.MapMode = "FlatFace"
sketch24.AttachmentOffset = App.Placement(App.Vector(0, 0, 8.1), App.Rotation())
add_polygon(sketch24, [(13.770117, -8.473151), (5.401068, -8.473151), (15.506266, 5.147845)])  # lines 0-2
sketch24.addConstraint([
    Sketcher.Constraint("Horizontal", 0),
    Sketcher.Constraint("DistanceX", 0, 2, 0, 1, 8.369049),
    Sketcher.Constraint("DistanceX", -1, 1, 0, 2, 5.401068),
    Sketcher.Constraint("DistanceY", 0, 2, -1, 1, 8.473151),
    Sketcher.Constraint("DistanceX", 2, 2, 1, 2, 1.736148),
    Sketcher.Constraint("Distance", 1, 16.960146),
])
pocket16 = body.newObject("PartDesign::Pocket", "Pocket015")
pocket16.Profile = sketch24
pocket16.Length = 7
pocket16.Reversed = True

# Sketch on YZ plane
sketch25 = body.newObject("Sketcher::SketchObject", "Sketch024")
sketch25.AttachmentSupport = (doc.getObject("YZ_Plane"), [""])
sketch25.MapMode = "FlatFace"
sketch25.AttachmentOffset = App.Placement(App.Vector(0, 0, 20), App.Rotation())
add_polygon(sketch25, [(-27.954883, 9.304753), (-27.954883, -8.892389), (-17.954883, -8.892389), (-17.954883, 9.304753)])  # lines 0-3
sketch25.addConstraint([
    Sketcher.Constraint("Vertical", 0),
    Sketcher.Constraint("Horizontal", 1),
    Sketcher.Constraint("Vertical", 2),
    Sketcher.Constraint("Horizontal", 3),
    Sketcher.Constraint("DistanceX", 1, 1, 1, 2, 10.0),
    Sketcher.Constraint("DistanceY", 0, 2, 0, 1, 18.197143),
    Sketcher.Constraint("DistanceY", 0, 2, -1, 1, 8.892389),
    Sketcher.Constraint("DistanceX", 0, 2, -1, 1, 27.954883),
])
pocket17 = body.newObject("PartDesign::Pocket", "Pocket016")
pocket17.Profile = sketch25
pocket17.Type = "ThroughAll"

# Sketch on YZ plane
sketch26 = body.newObject("Sketcher::SketchObject", "Sketch025")
sketch26.AttachmentSupport = (doc.getObject("YZ_Plane"), [""])
sketch26.MapMode = "FlatFace"
sketch26.AttachmentOffset = App.Placement(App.Vector(0, 0, 20), App.Rotation())
add_polygon(sketch26, [(-24.095102, 35.778423), (-82.550288, 35.778423), (-82.550288, -24.74801), (-24.095102, -24.74801)])  # lines 0-3
sketch26.addConstraint([
    Sketcher.Constraint("Horizontal", 0),
    Sketcher.Constraint("Vertical", 1),
    Sketcher.Constraint("Horizontal", 2),
    Sketcher.Constraint("Vertical", 3),
    Sketcher.Constraint("DistanceX", 2, 2, -1, 1, 24.095102),
    Sketcher.Constraint("DistanceX", 0, 2, 0, 1, 58.455186),
    Sketcher.Constraint("DistanceY", 1, 2, 1, 1, 60.526433),
    Sketcher.Constraint("DistanceY", 1, 2, -1, 1, 24.74801),
])
pocket18 = body.newObject("PartDesign::Pocket", "Pocket017")
pocket18.Profile = sketch26
pocket18.Type = "ThroughAll"

doc.recompute()
